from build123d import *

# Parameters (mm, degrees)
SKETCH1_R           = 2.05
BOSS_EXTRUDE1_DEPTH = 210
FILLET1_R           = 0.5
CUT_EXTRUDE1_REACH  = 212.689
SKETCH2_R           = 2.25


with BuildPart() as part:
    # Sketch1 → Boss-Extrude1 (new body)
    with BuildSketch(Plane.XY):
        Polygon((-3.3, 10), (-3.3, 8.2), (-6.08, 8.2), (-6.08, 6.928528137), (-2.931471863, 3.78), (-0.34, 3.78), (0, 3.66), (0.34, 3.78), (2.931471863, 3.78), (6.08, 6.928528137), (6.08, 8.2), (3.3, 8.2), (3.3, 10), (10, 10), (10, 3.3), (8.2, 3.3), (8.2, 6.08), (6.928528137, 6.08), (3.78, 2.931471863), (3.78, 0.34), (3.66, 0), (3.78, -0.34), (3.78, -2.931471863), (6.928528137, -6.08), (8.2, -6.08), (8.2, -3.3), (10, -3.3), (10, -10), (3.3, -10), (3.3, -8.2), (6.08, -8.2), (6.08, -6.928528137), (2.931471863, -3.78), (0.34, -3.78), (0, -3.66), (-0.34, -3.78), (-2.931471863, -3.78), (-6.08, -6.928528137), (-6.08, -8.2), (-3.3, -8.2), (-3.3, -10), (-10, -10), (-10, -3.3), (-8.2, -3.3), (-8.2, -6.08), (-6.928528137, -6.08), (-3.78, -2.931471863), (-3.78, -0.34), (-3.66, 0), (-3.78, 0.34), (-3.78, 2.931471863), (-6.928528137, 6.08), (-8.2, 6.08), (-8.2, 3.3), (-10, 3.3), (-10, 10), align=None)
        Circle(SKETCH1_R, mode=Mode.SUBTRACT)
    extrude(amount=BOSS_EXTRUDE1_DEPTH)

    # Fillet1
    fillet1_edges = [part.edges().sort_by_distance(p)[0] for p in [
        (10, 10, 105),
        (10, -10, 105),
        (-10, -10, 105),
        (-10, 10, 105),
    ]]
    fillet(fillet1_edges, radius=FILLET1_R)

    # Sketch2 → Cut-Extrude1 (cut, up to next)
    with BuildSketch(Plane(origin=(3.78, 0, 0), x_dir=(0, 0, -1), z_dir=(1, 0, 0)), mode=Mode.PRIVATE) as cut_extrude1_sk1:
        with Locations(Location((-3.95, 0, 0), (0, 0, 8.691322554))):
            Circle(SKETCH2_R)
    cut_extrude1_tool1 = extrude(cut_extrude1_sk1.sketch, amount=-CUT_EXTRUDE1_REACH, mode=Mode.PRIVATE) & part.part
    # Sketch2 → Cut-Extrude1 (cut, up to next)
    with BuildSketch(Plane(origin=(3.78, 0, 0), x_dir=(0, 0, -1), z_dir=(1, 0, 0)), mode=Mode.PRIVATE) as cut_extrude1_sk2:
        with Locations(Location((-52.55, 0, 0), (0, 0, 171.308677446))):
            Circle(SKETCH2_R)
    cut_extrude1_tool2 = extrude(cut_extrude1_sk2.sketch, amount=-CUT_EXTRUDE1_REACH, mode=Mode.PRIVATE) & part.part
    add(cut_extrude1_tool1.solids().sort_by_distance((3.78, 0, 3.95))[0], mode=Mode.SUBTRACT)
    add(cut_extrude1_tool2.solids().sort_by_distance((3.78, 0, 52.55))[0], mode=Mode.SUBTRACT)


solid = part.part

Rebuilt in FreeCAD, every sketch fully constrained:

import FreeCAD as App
import Part
import Sketcher
Q = App.Units.Quantity


def edges_at(feature, points):
    """Names of the edges that pass closest to the given points."""
    edges = feature.Shape.Edges
    near = lambda p: min(range(len(edges)), key=lambda i: edges[i].distToShape(Part.Vertex(*p))[0])
    return sorted({f"Edge{near(p) + 1}" for p in points})

doc = App.newDocument("Part")
body = doc.addObject("PartDesign::Body", "Body")

# Sketch on XY plane
sketch1 = body.newObject("Sketcher::SketchObject", "Sketch")
sketch1.AttachmentSupport = (doc.getObject("XY_Plane"), [""])
sketch1.MapMode = "FlatFace"
sketch1.addGeometry(Part.LineSegment(App.Vector(-3.3, 8.2, 0), App.Vector(-3.3, 10, 0)), False)
sketch1.addGeometry(Part.LineSegment(App.Vector(-3.3, 10, 0), App.Vector(-10, 10, 0)), False)
sketch1.addGeometry(Part.LineSegment(App.Vector(-10, 10, 0), App.Vector(-10, 3.3, 0)), False)
sketch1.addGeometry(Part.LineSegment(App.Vector(-10, 3.3, 0), App.Vector(-8.2, 3.3, 0)), False)
sketch1.addGeometry(Part.LineSegment(App.Vector(-8.2, 3.3, 0), App.Vector(-8.2, 6.08, 0)), False)
sketch1.addGeometry(Part.LineSegment(App.Vector(-8.2, 6.08, 0), App.Vector(-6.93, 6.08, 0)), False)
sketch1.addGeometry(Part.LineSegment(App.Vector(-6.93, 6.08, 0), App.Vector(-3.78, 2.93, 0)), False)
sketch1.addGeometry(Part.LineSegment(App.Vector(-3.78, 2.93, 0), App.Vector(-3.78, 0.34, 0)), False)
sketch1.addGeometry(Part.LineSegment(App.Vector(-3.78, 0.34, 0), App.Vector(-3.66, 0, 0)), False)
sketch1.addGeometry(Part.LineSegment(App.Vector(-3.66, 0, 0), App.Vector(-3.78, -0.34, 0)), False)
sketch1.addGeometry(Part.LineSegment(App.Vector(-3.78, -0.34, 0), App.Vector(-3.78, -2.93, 0)), False)
sketch1.addGeometry(Part.LineSegment(App.Vector(-3.78, -2.93, 0), App.Vector(-6.93, -6.08, 0)), False)
sketch1.addGeometry(Part.LineSegment(App.Vector(-6.93, -6.08, 0), App.Vector(-8.2, -6.08, 0)), False)
sketch1.addGeometry(Part.LineSegment(App.Vector(-8.2, -6.08, 0), App.Vector(-8.2, -3.3, 0)), False)
sketch1.addGeometry(Part.LineSegment(App.Vector(-8.2, -3.3, 0), App.Vector(-10, -3.3, 0)), False)
sketch1.addGeometry(Part.LineSegment(App.Vector(-10, -3.3, 0), App.Vector(-10, -10, 0)), False)
sketch1.addGeometry(Part.LineSegment(App.Vector(-10, -10, 0), App.Vector(-3.3, -10, 0)), False)
sketch1.addGeometry(Part.LineSegment(App.Vector(-3.3, -10, 0), App.Vector(-3.3, -8.2, 0)), False)
sketch1.addGeometry(Part.LineSegment(App.Vector(-3.3, -8.2, 0), App.Vector(-6.08, -8.2, 0)), False)
sketch1.addGeometry(Part.LineSegment(App.Vector(-6.08, -8.2, 0), App.Vector(-6.08, -6.93, 0)), False)
sketch1.addGeometry(Part.LineSegment(App.Vector(-6.08, -6.93, 0), App.Vector(-2.93, -3.78, 0)), False)
sketch1.addGeometry(Part.LineSegment(App.Vector(-2.93, -3.78, 0), App.Vector(-0.34, -3.78, 0)), False)
sketch1.addGeometry(Part.LineSegment(App.Vector(-0.34, -3.78, 0), App.Vector(0, -3.66, 0)), False)
sketch1.addGeometry(Part.LineSegment(App.Vector(0, -3.66, 0), App.Vector(0.34, -3.78, 0)), False)
sketch1.addGeometry(Part.LineSegment(App.Vector(0.34, -3.78, 0), App.Vector(2.93, -3.78, 0)), False)
sketch1.addGeometry(Part.LineSegment(App.Vector(2.93, -3.78, 0), App.Vector(6.08, -6.93, 0)), False)
sketch1.addGeometry(Part.LineSegment(App.Vector(6.08, -6.93, 0), App.Vector(6.08, -8.2, 0)), False)
sketch1.addGeometry(Part.LineSegment(App.Vector(6.08, -8.2, 0), App.Vector(3.3, -8.2, 0)), False)
sketch1.addGeometry(Part.LineSegment(App.Vector(3.3, -8.2, 0), App.Vector(3.3, -10, 0)), False)
sketch1.addGeometry(Part.LineSegment(App.Vector(3.3, -10, 0), App.Vector(10, -10, 0)), False)
sketch1.addGeometry(Part.LineSegment(App.Vector(10, -10, 0), App.Vector(10, -3.3, 0)), False)
sketch1.addGeometry(Part.LineSegment(App.Vector(10, -3.3, 0), App.Vector(8.2, -3.3, 0)), False)
sketch1.addGeometry(Part.LineSegment(App.Vector(8.2, -3.3, 0), App.Vector(8.2, -6.08, 0)), False)
sketch1.addGeometry(Part.LineSegment(App.Vector(8.2, -6.08, 0), App.Vector(6.93, -6.08, 0)), False)
sketch1.addGeometry(Part.LineSegment(App.Vector(6.93, -6.08, 0), App.Vector(3.78, -2.93, 0)), False)
sketch1.addGeometry(Part.LineSegment(App.Vector(3.78, -2.93, 0), App.Vector(3.78, -0.34, 0)), False)
sketch1.addGeometry(Part.LineSegment(App.Vector(3.78, -0.34, 0), App.Vector(3.66, 0, 0)), False)
sketch1.addGeometry(Part.LineSegment(App.Vector(3.66, 0, 0), App.Vector(3.78, 0.34, 0)), False)
sketch1.addGeometry(Part.LineSegment(App.Vector(3.78, 0.34, 0), App.Vector(3.78, 2.93, 0)), False)
sketch1.addGeometry(Part.LineSegment(App.Vector(3.78, 2.93, 0), App.Vector(6.93, 6.08, 0)), False)
sketch1.addGeometry(Part.LineSegment(App.Vector(6.93, 6.08, 0), App.Vector(8.2, 6.08, 0)), False)
sketch1.addGeometry(Part.LineSegment(App.Vector(8.2, 6.08, 0), App.Vector(8.2, 3.3, 0)), False)
sketch1.addGeometry(Part.LineSegment(App.Vector(8.2, 3.3, 0), App.Vector(10, 3.3, 0)), False)
sketch1.addGeometry(Part.LineSegment(App.Vector(10, 3.3, 0), App.Vector(10, 10, 0)), False)
sketch1.addGeometry(Part.LineSegment(App.Vector(10, 10, 0), App.Vector(3.3, 10, 0)), False)
sketch1.addGeometry(Part.LineSegment(App.Vector(3.3, 10, 0), App.Vector(3.3, 8.2, 0)), False)
sketch1.addGeometry(Part.LineSegment(App.Vector(3.3, 8.2, 0), App.Vector(6.08, 8.2, 0)), False)
sketch1.addGeometry(Part.LineSegment(App.Vector(6.08, 8.2, 0), App.Vector(6.08, 6.93, 0)), False)
sketch1.addGeometry(Part.LineSegment(App.Vector(6.08, 6.93, 0), App.Vector(2.93, 3.78, 0)), False)
sketch1.addGeometry(Part.LineSegment(App.Vector(2.93, 3.78, 0), App.Vector(0.34, 3.78, 0)), False)
sketch1.addGeometry(Part.LineSegment(App.Vector(0.34, 3.78, 0), App.Vector(0, 3.66, 0)), False)
sketch1.addGeometry(Part.LineSegment(App.Vector(0, 3.66, 0), App.Vector(-0.34, 3.78, 0)), False)
sketch1.addGeometry(Part.LineSegment(App.Vector(-0.34, 3.78, 0), App.Vector(-2.93, 3.78, 0)), False)
sketch1.addGeometry(Part.LineSegment(App.Vector(-2.93, 3.78, 0), App.Vector(-6.08, 6.93, 0)), False)
sketch1.addGeometry(Part.LineSegment(App.Vector(-6.08, 6.93, 0), App.Vector(-6.08, 8.2, 0)), False)
sketch1.addGeometry(Part.LineSegment(App.Vector(-6.08, 8.2, 0), App.Vector(-3.3, 8.2, 0)), False)
sketch1.addGeometry(Part.Circle(App.Vector(0, 0, 0), App.Vector(0, 0, 1), 2.05), False)
sketch1.addConstraint(Sketcher.Constraint("Coincident", 0, 2, 1, 1))
sketch1.addConstraint(Sketcher.Constraint("Coincident", 1, 2, 2, 1))
sketch1.addConstraint(Sketcher.Constraint("Coincident", 2, 2, 3, 1))
sketch1.addConstraint(Sketcher.Constraint("Coincident", 3, 2, 4, 1))
sketch1.addConstraint(Sketcher.Constraint("Coincident", 4, 2, 5, 1))
sketch1.addConstraint(Sketcher.Constraint("Coincident", 5, 2, 6, 1))
sketch1.addConstraint(Sketcher.Constraint("Coincident", 6, 2, 7, 1))
sketch1.addConstraint(Sketcher.Constraint("Coincident", 7, 2, 8, 1))
sketch1.addConstraint(Sketcher.Constraint("Coincident", 8, 2, 9, 1))
sketch1.addConstraint(Sketcher.Constraint("Coincident", 9, 2, 10, 1))
sketch1.addConstraint(Sketcher.Constraint("Coincident", 10, 2, 11, 1))
sketch1.addConstraint(Sketcher.Constraint("Coincident", 11, 2, 12, 1))
sketch1.addConstraint(Sketcher.Constraint("Coincident", 12, 2, 13, 1))
sketch1.addConstraint(Sketcher.Constraint("Coincident", 13, 2, 14, 1))
sketch1.addConstraint(Sketcher.Constraint("Coincident", 14, 2, 15, 1))
sketch1.addConstraint(Sketcher.Constraint("Coincident", 15, 2, 16, 1))
sketch1.addConstraint(Sketcher.Constraint("Coincident", 16, 2, 17, 1))
sketch1.addConstraint(Sketcher.Constraint("Coincident", 17, 2, 18, 1))
sketch1.addConstraint(Sketcher.Constraint("Coincident", 18, 2, 19, 1))
sketch1.addConstraint(Sketcher.Constraint("Coincident", 19, 2, 20, 1))
sketch1.addConstraint(Sketcher.Constraint("Coincident", 20, 2, 21, 1))
sketch1.addConstraint(Sketcher.Constraint("Coincident", 21, 2, 22, 1))
sketch1.addConstraint(Sketcher.Constraint("Coincident", 22, 2, 23, 1))
sketch1.addConstraint(Sketcher.Constraint("Coincident", 23, 2, 24, 1))
sketch1.addConstraint(Sketcher.Constraint("Coincident", 24, 2, 25, 1))
sketch1.addConstraint(Sketcher.Constraint("Coincident", 25, 2, 26, 1))
sketch1.addConstraint(Sketcher.Constraint("Coincident", 26, 2, 27, 1))
sketch1.addConstraint(Sketcher.Constraint("Coincident", 27, 2, 28, 1))
sketch1.addConstraint(Sketcher.Constraint("Coincident", 28, 2, 29, 1))
sketch1.addConstraint(Sketcher.Constraint("Coincident", 29, 2, 30, 1))
sketch1.addConstraint(Sketcher.Constraint("Coincident", 30, 2, 31, 1))
sketch1.addConstraint(Sketcher.Constraint("Coincident", 31, 2, 32, 1))
sketch1.addConstraint(Sketcher.Constraint("Coincident", 32, 2, 33, 1))
sketch1.addConstraint(Sketcher.Constraint("Coincident", 33, 2, 34, 1))
sketch1.addConstraint(Sketcher.Constraint("Coincident", 34, 2, 35, 1))
sketch1.addConstraint(Sketcher.Constraint("Coincident", 35, 2, 36, 1))
sketch1.addConstraint(Sketcher.Constraint("Coincident", 36, 2, 37, 1))
sketch1.addConstraint(Sketcher.Constraint("Coincident", 37, 2, 38, 1))
sketch1.addConstraint(Sketcher.Constraint("Coincident", 38, 2, 39, 1))
sketch1.addConstraint(Sketcher.Constraint("Coincident", 39, 2, 40, 1))
sketch1.addConstraint(Sketcher.Constraint("Coincident", 40, 2, 41, 1))
sketch1.addConstraint(Sketcher.Constraint("Coincident", 41, 2, 42, 1))
sketch1.addConstraint(Sketcher.Constraint("Coincident", 42, 2, 43, 1))
sketch1.addConstraint(Sketcher.Constraint("Coincident", 43, 2, 44, 1))
sketch1.addConstraint(Sketcher.Constraint("Coincident", 44, 2, 45, 1))
sketch1.addConstraint(Sketcher.Constraint("Coincident", 45, 2, 46, 1))
sketch1.addConstraint(Sketcher.Constraint("Coincident", 46, 2, 47, 1))
sketch1.addConstraint(Sketcher.Constraint("Coincident", 47, 2, 48, 1))
sketch1.addConstraint(Sketcher.Constraint("Coincident", 48, 2, 49, 1))
sketch1.addConstraint(Sketcher.Constraint("Coincident", 49, 2, 50, 1))
sketch1.addConstraint(Sketcher.Constraint("Coincident", 50, 2, 51, 1))
sketch1.addConstraint(Sketcher.Constraint("Coincident", 51, 2, 52, 1))
sketch1.addConstraint(Sketcher.Constraint("Coincident", 52, 2, 53, 1))
sketch1.addConstraint(Sketcher.Constraint("Coincident", 53, 2, 54, 1))
sketch1.addConstraint(Sketcher.Constraint("Coincident", 54, 2, 55, 1))
sketch1.addConstraint(Sketcher.Constraint("Coincident", 55, 2, 0, 1))
sketch1.addConstraint(Sketcher.Constraint("Vertical", 0))
sketch1.addConstraint(Sketcher.Constraint("Horizontal", 1))
sketch1.addConstraint(Sketcher.Constraint("Vertical", 2))
sketch1.addConstraint(Sketcher.Constraint("Horizontal", 3))
sketch1.addConstraint(Sketcher.Constraint("Vertical", 4))
sketch1.addConstraint(Sketcher.Constraint("Horizontal", 5))
sketch1.addConstraint(Sketcher.Constraint("Vertical", 7))
sketch1.addConstraint(Sketcher.Constraint("Vertical", 10))
sketch1.addConstraint(Sketcher.Constraint("Horizontal", 12))
sketch1.addConstraint(Sketcher.Constraint("Vertical", 13))
sketch1.addConstraint(Sketcher.Constraint("Horizontal", 14))
sketch1.addConstraint(Sketcher.Constraint("Vertical", 15))
sketch1.addConstraint(Sketcher.Constraint("Horizontal", 16))
sketch1.addConstraint(Sketcher.Constraint("Vertical", 17))
sketch1.addConstraint(Sketcher.Constraint("Horizontal", 18))
sketch1.addConstraint(Sketcher.Constraint("Vertical", 19))
sketch1.addConstraint(Sketcher.Constraint("Horizontal", 21))
sketch1.addConstraint(Sketcher.Constraint("Horizontal", 24))
sketch1.addConstraint(Sketcher.Constraint("Vertical", 26))
sketch1.addConstraint(Sketcher.Constraint("Horizontal", 27))
sketch1.addConstraint(Sketcher.Constraint("Vertical", 28))
sketch1.addConstraint(Sketcher.Constraint("Horizontal", 29))
sketch1.addConstraint(Sketcher.Constraint("Vertical", 30))
sketch1.addConstraint(Sketcher.Constraint("Horizontal", 31))
sketch1.addConstraint(Sketcher.Constraint("Vertical", 32))
sketch1.addConstraint(Sketcher.Constraint("Horizontal", 33))
sketch1.addConstraint(Sketcher.Constraint("Vertical", 35))
sketch1.addConstraint(Sketcher.Constraint("Vertical", 38))
sketch1.addConstraint(Sketcher.Constraint("Horizontal", 40))
sketch1.addConstraint(Sketcher.Constraint("Vertical", 41))
sketch1.addConstraint(Sketcher.Constraint("Horizontal", 42))
sketch1.addConstraint(Sketcher.Constraint("Vertical", 43))
sketch1.addConstraint(Sketcher.Constraint("Horizontal", 44))
sketch1.addConstraint(Sketcher.Constraint("Vertical", 45))
sketch1.addConstraint(Sketcher.Constraint("Horizontal", 46))
sketch1.addConstraint(Sketcher.Constraint("Vertical", 47))
sketch1.addConstraint(Sketcher.Constraint("Horizontal", 49))
sketch1.addConstraint(Sketcher.Constraint("Horizontal", 52))
sketch1.addConstraint(Sketcher.Constraint("Vertical", 54))
sketch1.addConstraint(Sketcher.Constraint("Horizontal", 55))
sketch1.addConstraint(Sketcher.Constraint("Coincident", 56, 3, -1, 1))
sketch1.addConstraint(Sketcher.Constraint("Symmetric", 0, 2, 28, 2, -1, 1))
sketch1.addConstraint(Sketcher.Constraint("Symmetric", 2, 2, 30, 2, -1, 1))
sketch1.addConstraint(Sketcher.Constraint("Symmetric", 4, 2, 32, 2, -1, 1))
sketch1.addConstraint(Sketcher.Constraint("Symmetric", 6, 2, 34, 2, -1, 1))
sketch1.addConstraint(Sketcher.Constraint("Symmetric", 8, 2, 36, 2, -1, 1))
sketch1.addConstraint(Sketcher.Constraint("Symmetric", 9, 2, 37, 2, -1, 1))
sketch1.addConstraint(Sketcher.Constraint("Symmetric", 11, 2, 39, 2, -1, 1))
sketch1.addConstraint(Sketcher.Constraint("Symmetric", 13, 2, 41, 2, -1, 1))
sketch1.addConstraint(Sketcher.Constraint("Symmetric", 15, 2, 43, 2, -1, 1))
sketch1.addConstraint(Sketcher.Constraint("Symmetric", 17, 2, 45, 2, -1, 1))
sketch1.addConstraint(Sketcher.Constraint("Symmetric", 19, 2, 47, 2, -1, 1))
sketch1.addConstraint(Sketcher.Constraint("Symmetric", 20, 2, 48, 2, -1, 1))
sketch1.addConstraint(Sketcher.Constraint("Symmetric", 22, 2, 50, 2, -1, 1))
sketch1.addConstraint(Sketcher.Constraint("Symmetric", 23, 2, 51, 2, -1, 1))
sketch1.addConstraint(Sketcher.Constraint("Symmetric", 25, 2, 53, 2, -1, 1))
sketch1.addConstraint(Sketcher.Constraint("Symmetric", 21, 2, 23, 2, -2))
sketch1.addConstraint(Sketcher.Constraint("Symmetric", 19, 2, 25, 2, -2))
sketch1.addConstraint(Sketcher.Constraint("Symmetric", 17, 2, 27, 2, -2))
sketch1.addConstraint(Sketcher.Constraint("Symmetric", 15, 2, 29, 2, -2))
sketch1.addConstraint(Sketcher.Constraint("Symmetric", 13, 2, 31, 2, -2))
sketch1.addConstraint(Sketcher.Constraint("Symmetric", 11, 2, 33, 2, -2))
sketch1.addConstraint(Sketcher.Constraint("Symmetric", 10, 2, 34, 2, -2))
sketch1.addConstraint(Sketcher.Constraint("PointOnObject", 8, 2, -1))
sketch1.addConstraint(Sketcher.Constraint("PointOnObject", 22, 2, -2))
sketch1.addConstraint(Sketcher.Constraint("Perpendicular", 6, 11))
sketch1.addConstraint(Sketcher.Constraint("Parallel", 11, 20))
sketch1.addConstraint(Sketcher.Constraint("Perpendicular", 8, 22))
sketch1.addConstraint(Sketcher.Constraint("Perpendicular", 9, 23))
sketch1.addConstraint(Sketcher.Constraint("Perpendicular", 20, 25))
sketch1.addConstraint(Sketcher.Constraint("Parallel", 25, 34))
sketch1.addConstraint(Sketcher.Constraint("Perpendicular", 22, 36))
sketch1.addConstraint(Sketcher.Constraint("Perpendicular", 34, 39))
sketch1.addConstraint(Sketcher.Constraint("Perpendicular", 36, 50))
sketch1.addConstraint(Sketcher.Constraint("Perpendicular", 48, 53))
sketch1.addConstraint(Sketcher.Constraint("Horizontal", 46, 2, 54, 2))
sketch1.addConstraint(Sketcher.Constraint("Equal", 42, 0))
sketch1.addConstraint(Sketcher.Constraint("Equal", 44, 2))
sketch1.addConstraint(Sketcher.Constraint("Equal", 55, 4))
sketch1.addConstraint(Sketcher.Constraint("Equal", 52, 7))
sketch1.addConstraint(Sketcher.Constraint("Equal", 40, 19))
sketch1.addConstraint(Sketcher.Constraint("Equal", 11, 20))
sketch1.addConstraint(Sketcher.Constraint("Equal", 9, 22))
sketch1.addConstraint(Sketcher.Constraint("Diameter", 56, Q("4.1 mm")))
sketch1.addConstraint(Sketcher.Constraint("DistanceX", 1, 2, 1, 1, Q("6.7 mm")))
sketch1.addConstraint(Sketcher.Constraint("DistanceX", 3, 1, 3, 2, Q("1.8 mm")))
sketch1.addConstraint(Sketcher.Constraint("DistanceY", -1, 1, 0, 2, Q("10 mm")))
sketch1.addConstraint(Sketcher.Constraint("DistanceX", 18, 2, 18, 1, Q("2.78 mm")))
sketch1.addConstraint(Sketcher.Constraint("DistanceX", 6, 2, -1, 1, Q("3.78 mm")))
sketch1.addConstraint(Sketcher.Constraint("DistanceY", -1, 1, 7, 2, Q("0.34 mm")))
sketch1.addConstraint(Sketcher.Constraint("DistanceX", 8, 2, -1, 1, Q("3.66 mm")))
sketch1.addConstraint(Sketcher.Constraint("DistanceX", 5, 1, 5, 2, Q("1.271472 mm")))
pad1 = body.newObject("PartDesign::Pad", "Pad")
pad1.Profile = sketch1
pad1.Length = 210
doc.recompute()

fillet = body.newObject("PartDesign::Fillet", "Fillet")
fillet.Base = (pad1, edges_at(pad1, [
    (10, 10, 105),
    (10, -10, 105),
    (-10, -10, 105),
    (-10, 10, 105),
]))
fillet.Radius = 0.5

# Sketch on YZ plane
sketch2 = body.newObject("Sketcher::SketchObject", "Sketch001")
sketch2.AttachmentSupport = (doc.getObject("YZ_Plane"), [""])
sketch2.MapMode = "FlatFace"
sketch2.AttachmentOffset = App.Placement(App.Vector(0, 0, 3.78), App.Rotation())
sketch2.addGeometry(Part.Circle(App.Vector(0, 4, 0), App.Vector(0, 0, 1), 2.2), False)
sketch2.addConstraint(Sketcher.Constraint("PointOnObject", 0, 3, -2))
sketch2.addConstraint(Sketcher.Constraint("Diameter", 0, Q("4.5 mm")))
sketch2.addConstraint(Sketcher.Constraint("DistanceY", -1, 1, 0, 3, Q("3.95 mm")))
pocket1 = body.newObject("PartDesign::Pocket", "Pocket")
pocket1.Profile = sketch2
pocket1.Length = 7.56

# Sketch on YZ plane
sketch3 = body.newObject("Sketcher::SketchObject", "Sketch002")
sketch3.AttachmentSupport = (doc.getObject("YZ_Plane"), [""])
sketch3.MapMode = "FlatFace"
sketch3.AttachmentOffset = App.Placement(App.Vector(0, 0, 3.78), App.Rotation())
sketch3.addGeometry(Part.Circle(App.Vector(0, 52.5, 0), App.Vector(0, 0, 1), 2.2), False)
sketch3.addConstraint(Sketcher.Constraint("PointOnObject", 0, 3, -2))
sketch3.addConstraint(Sketcher.Constraint("Diameter", 0, Q("4.5 mm")))
sketch3.addConstraint(Sketcher.Constraint("DistanceY", -1, 1, 0, 3, Q("52.55 mm")))
pocket2 = body.newObject("PartDesign::Pocket", "Pocket001")
pocket2.Profile = sketch3
pocket2.Length = 7.56

doc.recompute()
